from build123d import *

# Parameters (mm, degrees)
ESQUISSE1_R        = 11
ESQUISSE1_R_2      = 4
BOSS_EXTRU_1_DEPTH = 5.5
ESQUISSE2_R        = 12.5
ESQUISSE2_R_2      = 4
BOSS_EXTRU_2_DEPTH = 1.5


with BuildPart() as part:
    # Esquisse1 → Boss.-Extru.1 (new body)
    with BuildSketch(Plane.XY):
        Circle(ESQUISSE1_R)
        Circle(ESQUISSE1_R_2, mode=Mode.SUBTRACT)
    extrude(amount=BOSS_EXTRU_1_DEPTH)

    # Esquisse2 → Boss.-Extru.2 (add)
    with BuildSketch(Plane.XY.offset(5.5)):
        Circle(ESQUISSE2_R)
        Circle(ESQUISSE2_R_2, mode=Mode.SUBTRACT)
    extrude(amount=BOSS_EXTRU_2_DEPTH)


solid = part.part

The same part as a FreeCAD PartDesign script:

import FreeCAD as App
import Part
import Sketcher
Q = App.Units.Quantity

doc = App.newDocument("Part")
body = doc.addObject("PartDesign::Body", "Body")

# Sketch on XY plane
sketch1 = doc.addObject("Sketcher::SketchObject", "Sketch")
body.addObject(sketch1)
sketch1.AttachmentSupport = (doc.XY_Plane, [""])
sketch1.MapMode = "FlatFace"
sketch1.addGeometry([
    Part.Circle(App.Vector(0, 0, 0), App.Vector(0, 0, 1), 11),
    Part.Circle(App.Vector(0, 0, 0), App.Vector(0, 0, 1), 4),
], False)
sketch1.addConstraint([
    Sketcher.Constraint("Coincident", 0, 3, -1, 1),
    Sketcher.Constraint("Coincident", 1, 3, -1, 1),
    Sketcher.Constraint("Diameter", 0, Q("22 mm")),
    Sketcher.Constraint("Diameter", 1, Q("8 mm")),
])
pad1 = doc.addObject("PartDesign::Pad", "Pad")
body.addObject(pad1)
pad1.Profile = sketch1
pad1.Length = 5.5

# Sketch on XY plane
sketch2 = doc.addObject("Sketcher::SketchObject", "Sketch001")
body.addObject(sketch2)
sketch2.AttachmentSupport = (doc.XY_Plane, [""])
sketch2.MapMode = "FlatFace"
sketch2.AttachmentOffset = App.Placement(App.Vector(0, 0, 5.5), App.Rotation())
sketch2.addGeometry([
    Part.Circle(App.Vector(0, 0, 0), App.Vector(0, 0, 1), 12.5),
    Part.Circle(App.Vector(0, 0, 0), App.Vector(0, 0, 1), 4),
], False)
sketch2.addConstraint([
    Sketcher.Constraint("Coincident", 0, 3, -1, 1),
    Sketcher.Constraint("Coincident", 1, 3, -1, 1),
    Sketcher.Constraint("Diameter", 0, Q("25 mm")),
    Sketcher.Constraint("Diameter", 1, Q("8 mm")),
])
pad2 = doc.addObject("PartDesign::Pad", "Pad001")
body.addObject(pad2)
pad2.Profile = sketch2
pad2.Length = 1.5

doc.recompute()
